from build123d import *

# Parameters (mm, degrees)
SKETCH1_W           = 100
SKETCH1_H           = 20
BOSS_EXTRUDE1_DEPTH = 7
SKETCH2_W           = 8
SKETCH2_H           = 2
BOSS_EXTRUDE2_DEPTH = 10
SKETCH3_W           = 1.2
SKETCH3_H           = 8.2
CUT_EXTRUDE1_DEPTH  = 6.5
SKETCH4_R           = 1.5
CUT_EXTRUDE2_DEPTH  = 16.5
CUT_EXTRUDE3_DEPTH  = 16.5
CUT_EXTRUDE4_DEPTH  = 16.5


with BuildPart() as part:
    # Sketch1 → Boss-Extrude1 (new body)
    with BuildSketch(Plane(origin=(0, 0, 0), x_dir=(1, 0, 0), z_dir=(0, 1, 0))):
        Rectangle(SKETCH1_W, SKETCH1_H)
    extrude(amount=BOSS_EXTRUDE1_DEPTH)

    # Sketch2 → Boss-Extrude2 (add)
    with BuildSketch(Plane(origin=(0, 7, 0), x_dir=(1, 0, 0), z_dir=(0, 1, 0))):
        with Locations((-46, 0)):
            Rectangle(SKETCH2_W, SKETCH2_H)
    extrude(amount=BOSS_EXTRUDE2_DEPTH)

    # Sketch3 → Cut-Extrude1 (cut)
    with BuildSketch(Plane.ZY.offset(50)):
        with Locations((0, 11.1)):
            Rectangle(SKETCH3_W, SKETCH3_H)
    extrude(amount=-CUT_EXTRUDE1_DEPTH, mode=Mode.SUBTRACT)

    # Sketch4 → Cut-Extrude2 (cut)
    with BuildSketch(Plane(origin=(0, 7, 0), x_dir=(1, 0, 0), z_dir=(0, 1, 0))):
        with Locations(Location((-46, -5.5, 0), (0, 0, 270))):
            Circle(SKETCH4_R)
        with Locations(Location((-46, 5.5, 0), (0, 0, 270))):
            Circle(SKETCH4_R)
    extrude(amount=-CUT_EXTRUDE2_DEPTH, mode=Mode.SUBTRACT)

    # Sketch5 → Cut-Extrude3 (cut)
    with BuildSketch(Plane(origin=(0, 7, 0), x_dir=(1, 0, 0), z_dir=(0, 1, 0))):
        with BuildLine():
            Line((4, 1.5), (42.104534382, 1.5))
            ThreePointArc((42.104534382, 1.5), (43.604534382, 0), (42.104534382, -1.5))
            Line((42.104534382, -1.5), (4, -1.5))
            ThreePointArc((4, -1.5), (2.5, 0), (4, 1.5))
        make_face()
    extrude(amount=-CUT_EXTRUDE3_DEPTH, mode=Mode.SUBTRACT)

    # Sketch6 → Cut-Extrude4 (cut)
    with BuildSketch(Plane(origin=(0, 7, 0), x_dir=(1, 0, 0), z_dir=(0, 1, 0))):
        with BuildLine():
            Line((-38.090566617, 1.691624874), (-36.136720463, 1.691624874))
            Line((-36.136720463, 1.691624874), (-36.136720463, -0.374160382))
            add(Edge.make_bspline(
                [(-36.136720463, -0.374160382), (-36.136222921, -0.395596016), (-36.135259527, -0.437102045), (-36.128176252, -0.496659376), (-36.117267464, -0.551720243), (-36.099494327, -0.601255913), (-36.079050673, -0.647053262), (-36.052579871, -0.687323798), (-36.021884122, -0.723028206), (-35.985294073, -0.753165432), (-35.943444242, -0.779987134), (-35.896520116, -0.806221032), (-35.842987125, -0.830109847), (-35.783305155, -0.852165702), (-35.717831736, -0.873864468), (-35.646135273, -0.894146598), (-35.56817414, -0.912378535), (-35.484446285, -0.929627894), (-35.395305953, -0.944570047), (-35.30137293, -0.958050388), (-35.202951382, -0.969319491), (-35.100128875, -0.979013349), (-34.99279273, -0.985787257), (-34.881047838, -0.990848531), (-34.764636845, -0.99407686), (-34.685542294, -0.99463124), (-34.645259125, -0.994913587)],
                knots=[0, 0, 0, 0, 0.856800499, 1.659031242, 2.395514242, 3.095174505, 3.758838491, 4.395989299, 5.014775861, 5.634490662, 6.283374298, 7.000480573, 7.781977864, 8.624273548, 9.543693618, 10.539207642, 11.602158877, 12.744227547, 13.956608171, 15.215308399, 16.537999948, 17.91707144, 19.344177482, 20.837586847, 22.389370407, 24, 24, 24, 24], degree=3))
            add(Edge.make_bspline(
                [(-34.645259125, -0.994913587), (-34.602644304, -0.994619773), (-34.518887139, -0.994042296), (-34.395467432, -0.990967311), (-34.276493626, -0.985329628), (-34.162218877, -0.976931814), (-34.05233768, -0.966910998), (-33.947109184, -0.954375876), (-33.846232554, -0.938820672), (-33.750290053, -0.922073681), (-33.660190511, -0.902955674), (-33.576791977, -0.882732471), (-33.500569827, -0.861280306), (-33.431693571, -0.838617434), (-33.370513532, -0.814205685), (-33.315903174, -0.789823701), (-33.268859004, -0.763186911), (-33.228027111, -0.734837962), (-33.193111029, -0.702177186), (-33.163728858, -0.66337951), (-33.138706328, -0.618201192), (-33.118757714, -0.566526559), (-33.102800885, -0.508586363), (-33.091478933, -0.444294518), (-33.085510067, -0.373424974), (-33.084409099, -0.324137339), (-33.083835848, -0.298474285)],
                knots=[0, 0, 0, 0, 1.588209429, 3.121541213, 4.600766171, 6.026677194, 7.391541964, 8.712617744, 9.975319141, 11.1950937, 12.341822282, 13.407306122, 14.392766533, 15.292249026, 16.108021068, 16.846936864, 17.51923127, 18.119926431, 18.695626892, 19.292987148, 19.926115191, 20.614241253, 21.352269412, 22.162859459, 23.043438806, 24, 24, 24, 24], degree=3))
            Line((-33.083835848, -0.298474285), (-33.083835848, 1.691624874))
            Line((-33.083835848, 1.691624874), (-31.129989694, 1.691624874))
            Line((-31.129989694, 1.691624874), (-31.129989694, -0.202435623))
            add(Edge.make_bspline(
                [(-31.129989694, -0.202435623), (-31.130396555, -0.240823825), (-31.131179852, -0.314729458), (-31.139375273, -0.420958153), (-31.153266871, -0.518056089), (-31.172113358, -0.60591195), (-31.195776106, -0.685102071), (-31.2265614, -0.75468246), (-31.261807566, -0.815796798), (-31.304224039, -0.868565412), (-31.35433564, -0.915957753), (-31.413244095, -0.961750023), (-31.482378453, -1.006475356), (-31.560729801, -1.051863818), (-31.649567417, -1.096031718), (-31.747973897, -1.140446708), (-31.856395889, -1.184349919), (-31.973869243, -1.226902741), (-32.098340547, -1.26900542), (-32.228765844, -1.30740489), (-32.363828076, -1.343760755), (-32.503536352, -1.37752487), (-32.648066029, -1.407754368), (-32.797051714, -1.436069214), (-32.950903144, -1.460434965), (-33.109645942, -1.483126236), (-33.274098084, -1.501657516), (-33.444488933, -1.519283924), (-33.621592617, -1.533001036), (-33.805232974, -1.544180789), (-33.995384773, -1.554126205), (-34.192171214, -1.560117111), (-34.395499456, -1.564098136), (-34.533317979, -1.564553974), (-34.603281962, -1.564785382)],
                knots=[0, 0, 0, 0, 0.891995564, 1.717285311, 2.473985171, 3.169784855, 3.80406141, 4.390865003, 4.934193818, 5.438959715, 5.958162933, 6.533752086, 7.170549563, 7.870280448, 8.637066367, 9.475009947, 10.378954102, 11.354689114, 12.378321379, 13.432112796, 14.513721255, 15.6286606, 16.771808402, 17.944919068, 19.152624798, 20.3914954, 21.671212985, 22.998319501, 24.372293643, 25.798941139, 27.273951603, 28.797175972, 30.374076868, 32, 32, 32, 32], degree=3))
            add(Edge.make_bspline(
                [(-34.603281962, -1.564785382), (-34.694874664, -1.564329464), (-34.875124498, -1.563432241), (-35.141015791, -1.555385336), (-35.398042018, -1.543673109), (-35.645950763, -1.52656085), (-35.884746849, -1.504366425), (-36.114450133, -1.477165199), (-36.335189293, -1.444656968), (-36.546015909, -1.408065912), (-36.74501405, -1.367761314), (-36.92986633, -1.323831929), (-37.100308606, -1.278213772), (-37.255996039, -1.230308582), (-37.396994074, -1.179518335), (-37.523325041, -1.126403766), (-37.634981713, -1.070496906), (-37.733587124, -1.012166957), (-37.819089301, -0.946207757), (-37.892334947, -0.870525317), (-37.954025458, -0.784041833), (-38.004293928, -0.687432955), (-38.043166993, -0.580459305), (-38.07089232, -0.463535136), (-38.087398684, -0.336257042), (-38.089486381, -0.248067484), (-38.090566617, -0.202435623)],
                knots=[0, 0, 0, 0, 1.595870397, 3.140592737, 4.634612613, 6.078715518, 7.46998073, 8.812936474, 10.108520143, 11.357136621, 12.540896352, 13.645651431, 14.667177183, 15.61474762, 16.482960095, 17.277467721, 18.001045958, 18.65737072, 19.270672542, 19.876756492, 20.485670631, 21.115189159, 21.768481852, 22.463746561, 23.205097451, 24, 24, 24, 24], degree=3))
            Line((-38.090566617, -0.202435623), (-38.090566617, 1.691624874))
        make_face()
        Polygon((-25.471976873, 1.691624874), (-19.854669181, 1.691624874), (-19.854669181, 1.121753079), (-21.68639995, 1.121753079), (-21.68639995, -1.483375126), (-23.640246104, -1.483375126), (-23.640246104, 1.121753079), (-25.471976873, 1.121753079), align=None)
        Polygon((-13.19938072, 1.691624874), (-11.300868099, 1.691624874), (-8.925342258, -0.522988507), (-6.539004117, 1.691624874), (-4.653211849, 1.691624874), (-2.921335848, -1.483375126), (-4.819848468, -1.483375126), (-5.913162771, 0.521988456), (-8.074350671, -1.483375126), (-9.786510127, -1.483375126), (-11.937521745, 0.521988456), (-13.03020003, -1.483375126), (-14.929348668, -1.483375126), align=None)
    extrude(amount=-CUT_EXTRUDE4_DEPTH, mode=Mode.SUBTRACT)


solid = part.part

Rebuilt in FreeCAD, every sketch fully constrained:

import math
import FreeCAD as App
import Part
import Sketcher

V = App.Vector


def add_polygon(sketch, points):
    """Adds a closed chain of lines whose ends are joined by coincident constraints."""
    first, n = sketch.GeometryCount, len(points)
    for a, b in zip(points, points[1:] + points[:1]):
        sketch.addGeometry(Part.LineSegment(App.Vector(*a, 0), App.Vector(*b, 0)), False)
    for i in range(n):
        sketch.addConstraint(Sketcher.Constraint("Coincident", first + i, 2, first + (i + 1) % n, 1))

doc = App.newDocument("Part")
params = doc.addObject("Spreadsheet::Sheet", "Params")
for row, (alias, value) in enumerate([
    ("sketch1_width", "100 mm"),
    ("sketch1_height", "20 mm"),
    ("pad1_length", "7 mm"),
    ("sketch2_width", "8 mm"),
    ("sketch2_height", "2 mm"),
    ("pad2_length", "10 mm"),
    ("sketch3_width", "8.2 mm"),
    ("sketch3_height", "1.2 mm"),
    ("pocket1_length", "6.5 mm"),
    ("sketch4_diameter", "3 mm"),
    ("pocket2_length", "16.5 mm"),
    ("sketch5_radius", "1.5 mm"),
    ("pocket3_length", "16.5 mm"),
    ("pocket4_length", "16.5 mm"),
], start=1):
    params.set(f"A{row}", alias)
    params.set(f"B{row}", "=" + value)
    params.setAlias(f"B{row}", alias)

body = doc.addObject("PartDesign::Body", "Body")

sketch1 = body.newObject("Sketcher::SketchObject", "Sketch")
sketch1.AttachmentSupport = (doc.getObject("XZ_Plane"), [""])
sketch1.MapMode = "FlatFace"
add_polygon(sketch1, [(-50, -10), (-50, 10), (50, 10), (50, -10)])
sketch1.addConstraint([
    Sketcher.Constraint("Vertical", 0),
    Sketcher.Constraint("Horizontal", 1),
    Sketcher.Constraint("Vertical", 2),
    Sketcher.Constraint("Horizontal", 3),
    Sketcher.Constraint("Symmetric", 0, 2, 2, 2, -1, 1),
    Sketcher.Constraint("DistanceX", 1, 1, 1, 2, 100.0),
    Sketcher.Constraint("DistanceY", 0, 1, 0, 2, 20.0),
])
sketch1.setExpression("Constraints[9]", "Params.sketch1_width")
sketch1.setExpression("Constraints[10]", "Params.sketch1_height")
pad1 = body.newObject("PartDesign::Pad", "Pad")
pad1.Profile = sketch1
pad1.setExpression("Length", "Params.pad1_length")
pad1.Reversed = True

sketch2 = body.newObject("Sketcher::SketchObject", "Sketch001")
sketch2.AttachmentSupport = (doc.getObject("XZ_Plane"), [""])
sketch2.MapMode = "FlatFace"
sketch2.AttachmentOffset = App.Placement(V(0, 0, -7), App.Rotation())
add_polygon(sketch2, [(-50, -1), (-50, 1), (-42, 1), (-42, -1)])
sketch2.addConstraint([
    Sketcher.Constraint("Vertical", 0),
    Sketcher.Constraint("Horizontal", 1),
    Sketcher.Constraint("Vertical", 2),
    Sketcher.Constraint("Horizontal", 3),
    Sketcher.Constraint("DistanceX", 1, 1, 1, 2, 8.0),
    Sketcher.Constraint("DistanceY", 0, 1, 0, 2, 2.0),
    Sketcher.Constraint("DistanceX", 0, 2, -1, 1, 50.0),
    Sketcher.Constraint("DistanceY", -1, 1, 0, 2, 1.0),
])
sketch2.setExpression("Constraints[8]", "Params.sketch2_width")
sketch2.setExpression("Constraints[9]", "Params.sketch2_height")
pad2 = body.newObject("PartDesign::Pad", "Pad001")
pad2.Profile = sketch2
pad2.setExpression("Length", "Params.pad2_length")
pad2.Reversed = True

sketch3 = body.newObject("Sketcher::SketchObject", "Sketch002")
sketch3.AttachmentSupport = (doc.getObject("YZ_Plane"), [""])
sketch3.MapMode = "FlatFace"
sketch3.AttachmentOffset = App.Placement(V(0, 0, -50), App.Rotation())
add_polygon(sketch3, [(15.2, -0.6), (7, -0.6), (7, 0.6), (15.2, 0.6)])
sketch3.addConstraint([
    Sketcher.Constraint("Horizontal", 0),
    Sketcher.Constraint("Vertical", 1),
    Sketcher.Constraint("Horizontal", 2),
    Sketcher.Constraint("Vertical", 3),
    Sketcher.Constraint("DistanceX", 0, 2, 0, 1, 8.2),
    Sketcher.Constraint("DistanceY", 1, 1, 1, 2, 1.2),
    Sketcher.Constraint("DistanceX", -1, 1, 0, 2, 7.0),
    Sketcher.Constraint("DistanceY", 0, 2, -1, 1, 0.6),
])
sketch3.setExpression("Constraints[8]", "Params.sketch3_width")
sketch3.setExpression("Constraints[9]", "Params.sketch3_height")
pocket1 = body.newObject("PartDesign::Pocket", "Pocket")
pocket1.Profile = sketch3
pocket1.setExpression("Length", "Params.pocket1_length")
pocket1.Reversed = True

sketch4 = body.newObject("Sketcher::SketchObject", "Sketch003")
sketch4.AttachmentSupport = (doc.getObject("XZ_Plane"), [""])
sketch4.MapMode = "FlatFace"
sketch4.AttachmentOffset = App.Placement(V(0, 0, -7), App.Rotation())
sketch4.addGeometry([
    Part.Circle(V(-46, 5.5, 0), V(0, 0, 1), 1.5),
    Part.Circle(V(-46, -5.5, 0), V(0, 0, 1), 1.5),
], False)
sketch4.addConstraint([
    Sketcher.Constraint("Equal", 0, 1),
    Sketcher.Constraint("Symmetric", 0, 3, 1, 3, -1),
    Sketcher.Constraint("Diameter", 0, 3.0),
    Sketcher.Constraint("DistanceX", 0, 3, -1, 1, 46.0),
    Sketcher.Constraint("DistanceY", 1, 3, 0, 3, 11.0),
])
sketch4.setExpression("Constraints[2]", "Params.sketch4_diameter")
pocket2 = body.newObject("PartDesign::Pocket", "Pocket001")
pocket2.Profile = sketch4
pocket2.setExpression("Length", "Params.pocket2_length")
pocket2.Reversed = True

sketch5 = body.newObject("Sketcher::SketchObject", "Sketch004")
sketch5.AttachmentSupport = (doc.getObject("XZ_Plane"), [""])
sketch5.MapMode = "FlatFace"
sketch5.AttachmentOffset = App.Placement(V(0, 0, -7), App.Rotation())
sketch5.addGeometry([
    Part.LineSegment(V(42.104534, -1.5, 0), V(4, -1.5, 0)),
    Part.ArcOfCircle(Part.Circle(V(4, 0, 0), V(0, 0, 1), 1.5), math.radians(90), math.radians(270)),
    Part.LineSegment(V(4, 1.5, 0), V(42.104534, 1.5, 0)),
    Part.ArcOfCircle(Part.Circle(V(42.104534, 0, 0), V(0, 0, 1), 1.5), math.radians(-90), math.radians(90)),
], False)
sketch5.addConstraint([
    Sketcher.Constraint("Tangent", 0, 2, 1, 2),
    Sketcher.Constraint("Tangent", 1, 1, 2, 1),
    Sketcher.Constraint("Tangent", 2, 2, 3, 2),
    Sketcher.Constraint("Tangent", 3, 1, 0, 1),
    Sketcher.Constraint("Horizontal", 0),
    Sketcher.Constraint("Horizontal", 2),
    Sketcher.Constraint("PointOnObject", 1, 3, -1),
    Sketcher.Constraint("Radius", 1, 1.5),
    Sketcher.Constraint("DistanceX", -1, 1, 1, 3, 4.0),
    Sketcher.Constraint("DistanceX", 0, 2, 0, 1, 38.104534),
])
sketch5.setExpression("Constraints[7]", "Params.sketch5_radius")
pocket3 = body.newObject("PartDesign::Pocket", "Pocket002")
pocket3.Profile = sketch5
pocket3.setExpression("Length", "Params.pocket3_length")
pocket3.Reversed = True

sketch6 = body.newObject("Sketcher::SketchObject", "Sketch005")
sketch6.AttachmentSupport = (doc.getObject("XZ_Plane"), [""])
sketch6.MapMode = "FlatFace"
sketch6.AttachmentOffset = App.Placement(V(0, 0, -7), App.Rotation())
sketch6.addGeometry(Part.LineSegment(V(-36.13672, -1.691625, 0), V(-38.090567, -1.691625, 0)), False)
sketch6.addGeometry(Part.LineSegment(V(-38.090567, -1.691625, 0), V(-38.090567, 0.202436, 0)), False)
sketch6.addGeometry(Part.BSplineCurve([V(-34.603282, 1.564785, 0), V(-34.694875, 1.564329, 0), V(-34.875124, 1.563432, 0), V(-35.141016, 1.555385, 0), V(-35.398042, 1.543673, 0), V(-35.645951, 1.526561, 0), V(-35.884747, 1.504366, 0), V(-36.11445, 1.477165, 0), V(-36.335189, 1.444657, 0), V(-36.546016, 1.408066, 0), V(-36.745014, 1.367761, 0), V(-36.929866, 1.323832, 0), V(-37.100309, 1.278214, 0), V(-37.255996, 1.230309, 0), V(-37.396994, 1.179518, 0), V(-37.523325, 1.126404, 0), V(-37.634982, 1.070497, 0), V(-37.733587, 1.012167, 0), V(-37.819089, 0.946208, 0), V(-37.892335, 0.870525, 0), V(-37.954025, 0.784042, 0), V(-38.004294, 0.687433, 0), V(-38.043167, 0.580459, 0), V(-38.070892, 0.463535, 0), V(-38.087399, 0.336257, 0), V(-38.089486, 0.248067, 0), V(-38.090567, 0.202436, 0)], [4, 1, 1, 1, 1, 1, 1, 1, 1, 1, 1, 1, 1, 1, 1, 1, 1, 1, 1, 1, 1, 1, 1, 1, 4], [0, 1.595870397, 3.140592737, 4.634612613, 6.078715518, 7.46998073, 8.812936474, 10.108520143, 11.357136621, 12.540896352, 13.645651431, 14.667177183, 15.61474762, 16.482960095, 17.277467721, 18.001045958, 18.65737072, 19.270672542, 19.876756492, 20.485670631, 21.115189159, 21.768481852, 22.463746561, 23.205097451, 24], False, 3, [1, 1, 1, 1, 1, 1, 1, 1, 1, 1, 1, 1, 1, 1, 1, 1, 1, 1, 1, 1, 1, 1, 1, 1, 1, 1, 1], False), False)
sketch6.addGeometry(Part.BSplineCurve([V(-31.12999, 0.202436, 0), V(-31.130397, 0.240824, 0), V(-31.13118, 0.314729, 0), V(-31.139375, 0.420958, 0), V(-31.153267, 0.518056, 0), V(-31.172113, 0.605912, 0), V(-31.195776, 0.685102, 0), V(-31.226561, 0.754682, 0), V(-31.261808, 0.815797, 0), V(-31.304224, 0.868565, 0), V(-31.354336, 0.915958, 0), V(-31.413244, 0.96175, 0), V(-31.482378, 1.006475, 0), V(-31.56073, 1.051864, 0), V(-31.649567, 1.096032, 0), V(-31.747974, 1.140447, 0), V(-31.856396, 1.18435, 0), V(-31.973869, 1.226903, 0), V(-32.098341, 1.269005, 0), V(-32.228766, 1.307405, 0), V(-32.363828, 1.343761, 0), V(-32.503536, 1.377525, 0), V(-32.648066, 1.407754, 0), V(-32.797052, 1.436069, 0), V(-32.950903, 1.460435, 0), V(-33.109646, 1.483126, 0), V(-33.274098, 1.501658, 0), V(-33.444489, 1.519284, 0), V(-33.621593, 1.533001, 0), V(-33.805233, 1.544181, 0), V(-33.995385, 1.554126, 0), V(-34.192171, 1.560117, 0), V(-34.395499, 1.564098, 0), V(-34.533318, 1.564554, 0), V(-34.603282, 1.564785, 0)], [4, 1, 1, 1, 1, 1, 1, 1, 1, 1, 1, 1, 1, 1, 1, 1, 1, 1, 1, 1, 1, 1, 1, 1, 1, 1, 1, 1, 1, 1, 1, 1, 4], [0, 0.891995564, 1.717285311, 2.473985171, 3.169784855, 3.80406141, 4.390865003, 4.934193818, 5.438959715, 5.958162933, 6.533752086, 7.170549563, 7.870280448, 8.637066367, 9.475009947, 10.378954102, 11.354689114, 12.378321379, 13.432112796, 14.513721255, 15.6286606, 16.771808402, 17.944919068, 19.152624798, 20.3914954, 21.671212985, 22.998319501, 24.372293643, 25.798941139, 27.273951603, 28.797175972, 30.374076868, 32], False, 3, [1, 1, 1, 1, 1, 1, 1, 1, 1, 1, 1, 1, 1, 1, 1, 1, 1, 1, 1, 1, 1, 1, 1, 1, 1, 1, 1, 1, 1, 1, 1, 1, 1, 1, 1], False), False)
sketch6.addGeometry(Part.LineSegment(V(-31.12999, 0.202436, 0), V(-31.12999, -1.691625, 0)), False)
sketch6.addGeometry(Part.LineSegment(V(-31.12999, -1.691625, 0), V(-33.083836, -1.691625, 0)), False)
sketch6.addGeometry(Part.LineSegment(V(-33.083836, -1.691625, 0), V(-33.083836, 0.298474, 0)), False)
sketch6.addGeometry(Part.BSplineCurve([V(-34.645259, 0.994914, 0), V(-34.602644, 0.99462, 0), V(-34.518887, 0.994042, 0), V(-34.395467, 0.990967, 0), V(-34.276494, 0.98533, 0), V(-34.162219, 0.976932, 0), V(-34.052338, 0.966911, 0), V(-33.947109, 0.954376, 0), V(-33.846233, 0.938821, 0), V(-33.75029, 0.922074, 0), V(-33.660191, 0.902956, 0), V(-33.576792, 0.882732, 0), V(-33.50057, 0.86128, 0), V(-33.431694, 0.838617, 0), V(-33.370514, 0.814206, 0), V(-33.315903, 0.789824, 0), V(-33.268859, 0.763187, 0), V(-33.228027, 0.734838, 0), V(-33.193111, 0.702177, 0), V(-33.163729, 0.66338, 0), V(-33.138706, 0.618201, 0), V(-33.118758, 0.566527, 0), V(-33.102801, 0.508586, 0), V(-33.091479, 0.444295, 0), V(-33.08551, 0.373425, 0), V(-33.084409, 0.324137, 0), V(-33.083836, 0.298474, 0)], [4, 1, 1, 1, 1, 1, 1, 1, 1, 1, 1, 1, 1, 1, 1, 1, 1, 1, 1, 1, 1, 1, 1, 1, 4], [0, 1.588209429, 3.121541213, 4.600766171, 6.026677194, 7.391541964, 8.712617744, 9.975319141, 11.1950937, 12.341822282, 13.407306122, 14.392766533, 15.292249026, 16.108021068, 16.846936864, 17.51923127, 18.119926431, 18.695626892, 19.292987148, 19.926115191, 20.614241253, 21.352269412, 22.162859459, 23.043438806, 24], False, 3, [1, 1, 1, 1, 1, 1, 1, 1, 1, 1, 1, 1, 1, 1, 1, 1, 1, 1, 1, 1, 1, 1, 1, 1, 1, 1, 1], False), False)
sketch6.addGeometry(Part.BSplineCurve([V(-36.13672, 0.37416, 0), V(-36.136223, 0.395596, 0), V(-36.13526, 0.437102, 0), V(-36.128176, 0.496659, 0), V(-36.117267, 0.55172, 0), V(-36.099494, 0.601256, 0), V(-36.079051, 0.647053, 0), V(-36.05258, 0.687324, 0), V(-36.021884, 0.723028, 0), V(-35.985294, 0.753165, 0), V(-35.943444, 0.779987, 0), V(-35.89652, 0.806221, 0), V(-35.842987, 0.83011, 0), V(-35.783305, 0.852166, 0), V(-35.717832, 0.873864, 0), V(-35.646135, 0.894147, 0), V(-35.568174, 0.912379, 0), V(-35.484446, 0.929628, 0), V(-35.395306, 0.94457, 0), V(-35.301373, 0.95805, 0), V(-35.202951, 0.969319, 0), V(-35.100129, 0.979013, 0), V(-34.992793, 0.985787, 0), V(-34.881048, 0.990849, 0), V(-34.764637, 0.994077, 0), V(-34.685542, 0.994631, 0), V(-34.645259, 0.994914, 0)], [4, 1, 1, 1, 1, 1, 1, 1, 1, 1, 1, 1, 1, 1, 1, 1, 1, 1, 1, 1, 1, 1, 1, 1, 4], [0, 0.856800499, 1.659031242, 2.395514242, 3.095174505, 3.758838491, 4.395989299, 5.014775861, 5.634490662, 6.283374298, 7.000480573, 7.781977864, 8.624273548, 9.543693618, 10.539207642, 11.602158877, 12.744227547, 13.956608171, 15.215308399, 16.537999948, 17.91707144, 19.344177482, 20.837586847, 22.389370407, 24], False, 3, [1, 1, 1, 1, 1, 1, 1, 1, 1, 1, 1, 1, 1, 1, 1, 1, 1, 1, 1, 1, 1, 1, 1, 1, 1, 1, 1], False), False)
sketch6.addGeometry(Part.LineSegment(V(-36.13672, 0.37416, 0), V(-36.13672, -1.691625, 0)), False)
add_polygon(sketch6, [(-19.854669, -1.691625), (-25.471977, -1.691625), (-25.471977, -1.121753), (-23.640246, -1.121753), (-23.640246, 1.483375), (-21.6864, 1.483375), (-21.6864, -1.121753), (-19.854669, -1.121753)])
add_polygon(sketch6, [(-11.300868, -1.691625), (-13.199381, -1.691625), (-14.929349, 1.483375), (-13.0302, 1.483375), (-11.937522, -0.521988), (-9.78651, 1.483375), (-8.074351, 1.483375), (-5.913163, -0.521988), (-4.819848, 1.483375), (-2.921336, 1.483375), (-4.653212, -1.691625), (-6.539004, -1.691625), (-8.925342, 0.522989)])
sketch6.addConstraint([
    Sketcher.Constraint("Block", 2),
    Sketcher.Constraint("Block", 3),
    Sketcher.Constraint("Block", 7),
    Sketcher.Constraint("Block", 8),
    Sketcher.Constraint("Coincident", 0, 2, 1, 1),
    Sketcher.Constraint("Coincident", 1, 2, 2, 2),
    Sketcher.Constraint("Coincident", 3, 1, 4, 1),
    Sketcher.Constraint("Coincident", 4, 2, 5, 1),
    Sketcher.Constraint("Coincident", 5, 2, 6, 1),
    Sketcher.Constraint("Coincident", 6, 2, 7, 2),
    Sketcher.Constraint("Coincident", 8, 1, 9, 1),
    Sketcher.Constraint("Coincident", 9, 2, 0, 1),
    Sketcher.Constraint("Horizontal", 0),
    Sketcher.Constraint("Vertical", 1),
    Sketcher.Constraint("Vertical", 4),
    Sketcher.Constraint("Horizontal", 5),
    Sketcher.Constraint("Vertical", 6),
    Sketcher.Constraint("Vertical", 9),
    Sketcher.Constraint("Horizontal", 10),
    Sketcher.Constraint("Vertical", 11),
    Sketcher.Constraint("Horizontal", 12),
    Sketcher.Constraint("Vertical", 13),
    Sketcher.Constraint("Horizontal", 14),
    Sketcher.Constraint("Vertical", 15),
    Sketcher.Constraint("Horizontal", 16),
    Sketcher.Constraint("Vertical", 17),
    Sketcher.Constraint("Horizontal", 18),
    Sketcher.Constraint("Horizontal", 20),
    Sketcher.Constraint("Horizontal", 23),
    Sketcher.Constraint("Horizontal", 26),
    Sketcher.Constraint("Horizontal", 28),
    Sketcher.Constraint("Horizontal", 0, 2, 4, 2),
    Sketcher.Constraint("Horizontal", 9, 2, 10, 2),
    Sketcher.Constraint("Horizontal", 12, 2, 15, 2),
    Sketcher.Constraint("Horizontal", 17, 2, 18, 2),
    Sketcher.Constraint("Horizontal", 14, 2, 19, 2),
    Sketcher.Constraint("Horizontal", 20, 2, 22, 2),
    Sketcher.Constraint("Horizontal", 21, 2, 24, 2),
    Sketcher.Constraint("Horizontal", 23, 2, 25, 2),
    Sketcher.Constraint("Horizontal", 18, 2, 27, 2),
    Sketcher.Constraint("Equal", 5, 14),
    Sketcher.Constraint("Equal", 12, 16),
    Sketcher.Constraint("Equal", 18, 26),
    Sketcher.Constraint("DistanceY", 6, 1, 6, 2, 1.990099),
    Sketcher.Constraint("DistanceY", 10, 2, 13, 2, 3.175),
    Sketcher.Constraint("DistanceX", 12, 1, 12, 2, 1.831731),
    Sketcher.Constraint("DistanceX", 20, 1, 20, 2, 1.899149),
    Sketcher.Constraint("DistanceX", 23, 1, 23, 2, 1.712159),
    Sketcher.Constraint("DistanceY", 11, 1, 11, 2, 0.569872),
    Sketcher.Constraint("DistanceX", 14, 2, -1, 1, 21.6864),
    Sketcher.Constraint("DistanceX", 20, 2, -1, 1, 13.0302),
    Sketcher.Constraint("DistanceX", 22, 2, 27, 2, 5.133298),
    Sketcher.Constraint("Distance", 21, 2.283731),
    Sketcher.Constraint("Distance", 27, 3.616631),
    Sketcher.Constraint("Distance", 29, 3.255629),
    Sketcher.Constraint("DistanceX", 18, 2, 18, 1, 1.898513),
    Sketcher.Constraint("DistanceX", 28, 2, 28, 1, 1.885792),
    Sketcher.Constraint("DistanceX", 18, 2, -1, 1, 13.199381),
    Sketcher.Constraint("DistanceX", 21, 2, -1, 1, 11.937522),
    Sketcher.Constraint("DistanceX", 22, 2, -1, 1, 9.78651),
    Sketcher.Constraint("DistanceY", -1, 1, 29, 2, 0.522989),
    Sketcher.Constraint("DistanceX", 21, 2, 24, 2, 6.024359),
])
pocket4 = body.newObject("PartDesign::Pocket", "Pocket003")
pocket4.Profile = sketch6
pocket4.setExpression("Length", "Params.pocket4_length")
pocket4.Reversed = True

doc.recompute()
